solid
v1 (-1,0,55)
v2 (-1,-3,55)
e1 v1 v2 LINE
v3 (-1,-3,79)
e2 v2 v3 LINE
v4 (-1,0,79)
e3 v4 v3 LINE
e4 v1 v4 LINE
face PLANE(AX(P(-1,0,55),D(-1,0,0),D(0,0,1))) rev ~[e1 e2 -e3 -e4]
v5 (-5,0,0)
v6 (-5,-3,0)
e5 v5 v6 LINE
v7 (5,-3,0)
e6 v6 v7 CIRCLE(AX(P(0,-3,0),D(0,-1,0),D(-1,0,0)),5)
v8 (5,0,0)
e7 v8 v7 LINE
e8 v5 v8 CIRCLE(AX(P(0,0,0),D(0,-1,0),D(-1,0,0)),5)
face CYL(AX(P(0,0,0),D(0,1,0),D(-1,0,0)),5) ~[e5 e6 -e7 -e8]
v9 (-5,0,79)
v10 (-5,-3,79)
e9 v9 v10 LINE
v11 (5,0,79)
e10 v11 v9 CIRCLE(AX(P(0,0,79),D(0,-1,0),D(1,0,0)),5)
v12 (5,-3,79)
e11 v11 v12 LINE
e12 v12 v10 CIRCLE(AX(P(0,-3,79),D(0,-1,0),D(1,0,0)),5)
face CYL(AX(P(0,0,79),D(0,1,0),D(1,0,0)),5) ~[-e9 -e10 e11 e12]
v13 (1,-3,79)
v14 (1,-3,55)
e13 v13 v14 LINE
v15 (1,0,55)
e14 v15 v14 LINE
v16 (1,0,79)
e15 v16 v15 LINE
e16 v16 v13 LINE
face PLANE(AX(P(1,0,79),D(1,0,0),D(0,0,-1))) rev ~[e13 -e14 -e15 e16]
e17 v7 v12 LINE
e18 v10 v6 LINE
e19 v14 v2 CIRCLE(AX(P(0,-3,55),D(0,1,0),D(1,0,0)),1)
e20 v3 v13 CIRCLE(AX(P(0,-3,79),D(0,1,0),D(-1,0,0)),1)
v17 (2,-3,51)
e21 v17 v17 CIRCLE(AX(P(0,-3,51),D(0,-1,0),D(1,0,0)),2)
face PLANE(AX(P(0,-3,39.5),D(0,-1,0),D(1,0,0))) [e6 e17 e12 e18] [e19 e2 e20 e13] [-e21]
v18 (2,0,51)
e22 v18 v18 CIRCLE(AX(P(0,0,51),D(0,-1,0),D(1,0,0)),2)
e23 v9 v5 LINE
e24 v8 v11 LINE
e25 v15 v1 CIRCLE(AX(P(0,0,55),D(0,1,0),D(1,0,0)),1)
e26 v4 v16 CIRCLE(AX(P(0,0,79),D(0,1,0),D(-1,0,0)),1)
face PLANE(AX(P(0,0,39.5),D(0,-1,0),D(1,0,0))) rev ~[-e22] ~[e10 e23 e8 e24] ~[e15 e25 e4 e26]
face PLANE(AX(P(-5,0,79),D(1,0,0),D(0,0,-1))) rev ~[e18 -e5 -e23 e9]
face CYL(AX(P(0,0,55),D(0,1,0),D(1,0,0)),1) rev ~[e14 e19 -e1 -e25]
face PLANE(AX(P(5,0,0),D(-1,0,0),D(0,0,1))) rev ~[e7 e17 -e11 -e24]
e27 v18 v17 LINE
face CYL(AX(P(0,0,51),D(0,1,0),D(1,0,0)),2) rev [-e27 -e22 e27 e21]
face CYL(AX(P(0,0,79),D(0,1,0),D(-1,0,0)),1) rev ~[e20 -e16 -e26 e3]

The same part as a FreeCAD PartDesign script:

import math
import FreeCAD as App
import Part
import Sketcher
from FreeCAD import Vector
Q = App.Units.Quantity

doc = App.newDocument("Part")
body = doc.addObject("PartDesign::Body", "Body")

# Sketch on XZ plane
sketch1 = doc.addObject("Sketcher::SketchObject", "Sketch")
body.addObject(sketch1)
sketch1.AttachmentSupport = (doc.XZ_Plane, [""])
sketch1.MapMode = "FlatFace"
sketch1.addGeometry([
    Part.LineSegment(Vector(-5, 79, 0), Vector(-5, 0, 0)),  # 0
    Part.ArcOfCircle(Part.Circle(Vector(0, 0, 0), Vector(0, 0, 1), 5), math.radians(180), math.radians(360)),  # 1
    Part.LineSegment(Vector(5, 0, 0), Vector(5, 79, 0)),  # 2
    Part.ArcOfCircle(Part.Circle(Vector(0, 79, 0), Vector(0, 0, 1), 5), math.radians(0), math.radians(180)),  # 3
    Part.Circle(Vector(0, 51, 0), Vector(0, 0, 1), 2),  # 4
    Part.LineSegment(Vector(-1, 55, 0), Vector(-1, 79, 0)),  # 5
    Part.ArcOfCircle(Part.Circle(Vector(0, 79, 0), Vector(0, 0, 1), 1), math.radians(0), math.radians(180)),  # 6
    Part.LineSegment(Vector(1, 79, 0), Vector(1, 55, 0)),  # 7
    Part.ArcOfCircle(Part.Circle(Vector(0, 55, 0), Vector(0, 0, 1), 1), math.radians(180), math.radians(360)),  # 8
], False)
sketch1.addConstraint([
    Sketcher.Constraint("Tangent", 0, 2, 1, 1),
    Sketcher.Constraint("Tangent", 1, 2, 2, 1),
    Sketcher.Constraint("Tangent", 2, 2, 3, 1),
    Sketcher.Constraint("Tangent", 3, 2, 0, 1),
    Sketcher.Constraint("Tangent", 5, 2, 6, 2),
    Sketcher.Constraint("Tangent", 6, 1, 7, 1),
    Sketcher.Constraint("Tangent", 7, 2, 8, 2),
    Sketcher.Constraint("Tangent", 8, 1, 5, 1),
    Sketcher.Constraint("Vertical", 0),
    Sketcher.Constraint("Vertical", 2),
    Sketcher.Constraint("Vertical", 5),
    Sketcher.Constraint("Vertical", 7),
    Sketcher.Constraint("Coincident", 1, 3, -1, 1),
    Sketcher.Constraint("Coincident", 6, 3, 3, 3),
    Sketcher.Constraint("PointOnObject", 4, 3, -2),
    Sketcher.Constraint("Diameter", 4, Q("4 mm")),
    Sketcher.Constraint("Radius", 1, Q("5 mm")),
    Sketcher.Constraint("Radius", 6, Q("1 mm")),
    Sketcher.Constraint("DistanceY", 0, 2, 0, 1, Q("79 mm")),
    Sketcher.Constraint("DistanceY", 5, 1, 5, 2, Q("24 mm")),
    Sketcher.Constraint("DistanceY", -1, 1, 4, 3, Q("51 mm")),
])
pad1 = doc.addObject("PartDesign::Pad", "Pad")
body.addObject(pad1)
pad1.Profile = sketch1
pad1.Length = 3

doc.recompute()
